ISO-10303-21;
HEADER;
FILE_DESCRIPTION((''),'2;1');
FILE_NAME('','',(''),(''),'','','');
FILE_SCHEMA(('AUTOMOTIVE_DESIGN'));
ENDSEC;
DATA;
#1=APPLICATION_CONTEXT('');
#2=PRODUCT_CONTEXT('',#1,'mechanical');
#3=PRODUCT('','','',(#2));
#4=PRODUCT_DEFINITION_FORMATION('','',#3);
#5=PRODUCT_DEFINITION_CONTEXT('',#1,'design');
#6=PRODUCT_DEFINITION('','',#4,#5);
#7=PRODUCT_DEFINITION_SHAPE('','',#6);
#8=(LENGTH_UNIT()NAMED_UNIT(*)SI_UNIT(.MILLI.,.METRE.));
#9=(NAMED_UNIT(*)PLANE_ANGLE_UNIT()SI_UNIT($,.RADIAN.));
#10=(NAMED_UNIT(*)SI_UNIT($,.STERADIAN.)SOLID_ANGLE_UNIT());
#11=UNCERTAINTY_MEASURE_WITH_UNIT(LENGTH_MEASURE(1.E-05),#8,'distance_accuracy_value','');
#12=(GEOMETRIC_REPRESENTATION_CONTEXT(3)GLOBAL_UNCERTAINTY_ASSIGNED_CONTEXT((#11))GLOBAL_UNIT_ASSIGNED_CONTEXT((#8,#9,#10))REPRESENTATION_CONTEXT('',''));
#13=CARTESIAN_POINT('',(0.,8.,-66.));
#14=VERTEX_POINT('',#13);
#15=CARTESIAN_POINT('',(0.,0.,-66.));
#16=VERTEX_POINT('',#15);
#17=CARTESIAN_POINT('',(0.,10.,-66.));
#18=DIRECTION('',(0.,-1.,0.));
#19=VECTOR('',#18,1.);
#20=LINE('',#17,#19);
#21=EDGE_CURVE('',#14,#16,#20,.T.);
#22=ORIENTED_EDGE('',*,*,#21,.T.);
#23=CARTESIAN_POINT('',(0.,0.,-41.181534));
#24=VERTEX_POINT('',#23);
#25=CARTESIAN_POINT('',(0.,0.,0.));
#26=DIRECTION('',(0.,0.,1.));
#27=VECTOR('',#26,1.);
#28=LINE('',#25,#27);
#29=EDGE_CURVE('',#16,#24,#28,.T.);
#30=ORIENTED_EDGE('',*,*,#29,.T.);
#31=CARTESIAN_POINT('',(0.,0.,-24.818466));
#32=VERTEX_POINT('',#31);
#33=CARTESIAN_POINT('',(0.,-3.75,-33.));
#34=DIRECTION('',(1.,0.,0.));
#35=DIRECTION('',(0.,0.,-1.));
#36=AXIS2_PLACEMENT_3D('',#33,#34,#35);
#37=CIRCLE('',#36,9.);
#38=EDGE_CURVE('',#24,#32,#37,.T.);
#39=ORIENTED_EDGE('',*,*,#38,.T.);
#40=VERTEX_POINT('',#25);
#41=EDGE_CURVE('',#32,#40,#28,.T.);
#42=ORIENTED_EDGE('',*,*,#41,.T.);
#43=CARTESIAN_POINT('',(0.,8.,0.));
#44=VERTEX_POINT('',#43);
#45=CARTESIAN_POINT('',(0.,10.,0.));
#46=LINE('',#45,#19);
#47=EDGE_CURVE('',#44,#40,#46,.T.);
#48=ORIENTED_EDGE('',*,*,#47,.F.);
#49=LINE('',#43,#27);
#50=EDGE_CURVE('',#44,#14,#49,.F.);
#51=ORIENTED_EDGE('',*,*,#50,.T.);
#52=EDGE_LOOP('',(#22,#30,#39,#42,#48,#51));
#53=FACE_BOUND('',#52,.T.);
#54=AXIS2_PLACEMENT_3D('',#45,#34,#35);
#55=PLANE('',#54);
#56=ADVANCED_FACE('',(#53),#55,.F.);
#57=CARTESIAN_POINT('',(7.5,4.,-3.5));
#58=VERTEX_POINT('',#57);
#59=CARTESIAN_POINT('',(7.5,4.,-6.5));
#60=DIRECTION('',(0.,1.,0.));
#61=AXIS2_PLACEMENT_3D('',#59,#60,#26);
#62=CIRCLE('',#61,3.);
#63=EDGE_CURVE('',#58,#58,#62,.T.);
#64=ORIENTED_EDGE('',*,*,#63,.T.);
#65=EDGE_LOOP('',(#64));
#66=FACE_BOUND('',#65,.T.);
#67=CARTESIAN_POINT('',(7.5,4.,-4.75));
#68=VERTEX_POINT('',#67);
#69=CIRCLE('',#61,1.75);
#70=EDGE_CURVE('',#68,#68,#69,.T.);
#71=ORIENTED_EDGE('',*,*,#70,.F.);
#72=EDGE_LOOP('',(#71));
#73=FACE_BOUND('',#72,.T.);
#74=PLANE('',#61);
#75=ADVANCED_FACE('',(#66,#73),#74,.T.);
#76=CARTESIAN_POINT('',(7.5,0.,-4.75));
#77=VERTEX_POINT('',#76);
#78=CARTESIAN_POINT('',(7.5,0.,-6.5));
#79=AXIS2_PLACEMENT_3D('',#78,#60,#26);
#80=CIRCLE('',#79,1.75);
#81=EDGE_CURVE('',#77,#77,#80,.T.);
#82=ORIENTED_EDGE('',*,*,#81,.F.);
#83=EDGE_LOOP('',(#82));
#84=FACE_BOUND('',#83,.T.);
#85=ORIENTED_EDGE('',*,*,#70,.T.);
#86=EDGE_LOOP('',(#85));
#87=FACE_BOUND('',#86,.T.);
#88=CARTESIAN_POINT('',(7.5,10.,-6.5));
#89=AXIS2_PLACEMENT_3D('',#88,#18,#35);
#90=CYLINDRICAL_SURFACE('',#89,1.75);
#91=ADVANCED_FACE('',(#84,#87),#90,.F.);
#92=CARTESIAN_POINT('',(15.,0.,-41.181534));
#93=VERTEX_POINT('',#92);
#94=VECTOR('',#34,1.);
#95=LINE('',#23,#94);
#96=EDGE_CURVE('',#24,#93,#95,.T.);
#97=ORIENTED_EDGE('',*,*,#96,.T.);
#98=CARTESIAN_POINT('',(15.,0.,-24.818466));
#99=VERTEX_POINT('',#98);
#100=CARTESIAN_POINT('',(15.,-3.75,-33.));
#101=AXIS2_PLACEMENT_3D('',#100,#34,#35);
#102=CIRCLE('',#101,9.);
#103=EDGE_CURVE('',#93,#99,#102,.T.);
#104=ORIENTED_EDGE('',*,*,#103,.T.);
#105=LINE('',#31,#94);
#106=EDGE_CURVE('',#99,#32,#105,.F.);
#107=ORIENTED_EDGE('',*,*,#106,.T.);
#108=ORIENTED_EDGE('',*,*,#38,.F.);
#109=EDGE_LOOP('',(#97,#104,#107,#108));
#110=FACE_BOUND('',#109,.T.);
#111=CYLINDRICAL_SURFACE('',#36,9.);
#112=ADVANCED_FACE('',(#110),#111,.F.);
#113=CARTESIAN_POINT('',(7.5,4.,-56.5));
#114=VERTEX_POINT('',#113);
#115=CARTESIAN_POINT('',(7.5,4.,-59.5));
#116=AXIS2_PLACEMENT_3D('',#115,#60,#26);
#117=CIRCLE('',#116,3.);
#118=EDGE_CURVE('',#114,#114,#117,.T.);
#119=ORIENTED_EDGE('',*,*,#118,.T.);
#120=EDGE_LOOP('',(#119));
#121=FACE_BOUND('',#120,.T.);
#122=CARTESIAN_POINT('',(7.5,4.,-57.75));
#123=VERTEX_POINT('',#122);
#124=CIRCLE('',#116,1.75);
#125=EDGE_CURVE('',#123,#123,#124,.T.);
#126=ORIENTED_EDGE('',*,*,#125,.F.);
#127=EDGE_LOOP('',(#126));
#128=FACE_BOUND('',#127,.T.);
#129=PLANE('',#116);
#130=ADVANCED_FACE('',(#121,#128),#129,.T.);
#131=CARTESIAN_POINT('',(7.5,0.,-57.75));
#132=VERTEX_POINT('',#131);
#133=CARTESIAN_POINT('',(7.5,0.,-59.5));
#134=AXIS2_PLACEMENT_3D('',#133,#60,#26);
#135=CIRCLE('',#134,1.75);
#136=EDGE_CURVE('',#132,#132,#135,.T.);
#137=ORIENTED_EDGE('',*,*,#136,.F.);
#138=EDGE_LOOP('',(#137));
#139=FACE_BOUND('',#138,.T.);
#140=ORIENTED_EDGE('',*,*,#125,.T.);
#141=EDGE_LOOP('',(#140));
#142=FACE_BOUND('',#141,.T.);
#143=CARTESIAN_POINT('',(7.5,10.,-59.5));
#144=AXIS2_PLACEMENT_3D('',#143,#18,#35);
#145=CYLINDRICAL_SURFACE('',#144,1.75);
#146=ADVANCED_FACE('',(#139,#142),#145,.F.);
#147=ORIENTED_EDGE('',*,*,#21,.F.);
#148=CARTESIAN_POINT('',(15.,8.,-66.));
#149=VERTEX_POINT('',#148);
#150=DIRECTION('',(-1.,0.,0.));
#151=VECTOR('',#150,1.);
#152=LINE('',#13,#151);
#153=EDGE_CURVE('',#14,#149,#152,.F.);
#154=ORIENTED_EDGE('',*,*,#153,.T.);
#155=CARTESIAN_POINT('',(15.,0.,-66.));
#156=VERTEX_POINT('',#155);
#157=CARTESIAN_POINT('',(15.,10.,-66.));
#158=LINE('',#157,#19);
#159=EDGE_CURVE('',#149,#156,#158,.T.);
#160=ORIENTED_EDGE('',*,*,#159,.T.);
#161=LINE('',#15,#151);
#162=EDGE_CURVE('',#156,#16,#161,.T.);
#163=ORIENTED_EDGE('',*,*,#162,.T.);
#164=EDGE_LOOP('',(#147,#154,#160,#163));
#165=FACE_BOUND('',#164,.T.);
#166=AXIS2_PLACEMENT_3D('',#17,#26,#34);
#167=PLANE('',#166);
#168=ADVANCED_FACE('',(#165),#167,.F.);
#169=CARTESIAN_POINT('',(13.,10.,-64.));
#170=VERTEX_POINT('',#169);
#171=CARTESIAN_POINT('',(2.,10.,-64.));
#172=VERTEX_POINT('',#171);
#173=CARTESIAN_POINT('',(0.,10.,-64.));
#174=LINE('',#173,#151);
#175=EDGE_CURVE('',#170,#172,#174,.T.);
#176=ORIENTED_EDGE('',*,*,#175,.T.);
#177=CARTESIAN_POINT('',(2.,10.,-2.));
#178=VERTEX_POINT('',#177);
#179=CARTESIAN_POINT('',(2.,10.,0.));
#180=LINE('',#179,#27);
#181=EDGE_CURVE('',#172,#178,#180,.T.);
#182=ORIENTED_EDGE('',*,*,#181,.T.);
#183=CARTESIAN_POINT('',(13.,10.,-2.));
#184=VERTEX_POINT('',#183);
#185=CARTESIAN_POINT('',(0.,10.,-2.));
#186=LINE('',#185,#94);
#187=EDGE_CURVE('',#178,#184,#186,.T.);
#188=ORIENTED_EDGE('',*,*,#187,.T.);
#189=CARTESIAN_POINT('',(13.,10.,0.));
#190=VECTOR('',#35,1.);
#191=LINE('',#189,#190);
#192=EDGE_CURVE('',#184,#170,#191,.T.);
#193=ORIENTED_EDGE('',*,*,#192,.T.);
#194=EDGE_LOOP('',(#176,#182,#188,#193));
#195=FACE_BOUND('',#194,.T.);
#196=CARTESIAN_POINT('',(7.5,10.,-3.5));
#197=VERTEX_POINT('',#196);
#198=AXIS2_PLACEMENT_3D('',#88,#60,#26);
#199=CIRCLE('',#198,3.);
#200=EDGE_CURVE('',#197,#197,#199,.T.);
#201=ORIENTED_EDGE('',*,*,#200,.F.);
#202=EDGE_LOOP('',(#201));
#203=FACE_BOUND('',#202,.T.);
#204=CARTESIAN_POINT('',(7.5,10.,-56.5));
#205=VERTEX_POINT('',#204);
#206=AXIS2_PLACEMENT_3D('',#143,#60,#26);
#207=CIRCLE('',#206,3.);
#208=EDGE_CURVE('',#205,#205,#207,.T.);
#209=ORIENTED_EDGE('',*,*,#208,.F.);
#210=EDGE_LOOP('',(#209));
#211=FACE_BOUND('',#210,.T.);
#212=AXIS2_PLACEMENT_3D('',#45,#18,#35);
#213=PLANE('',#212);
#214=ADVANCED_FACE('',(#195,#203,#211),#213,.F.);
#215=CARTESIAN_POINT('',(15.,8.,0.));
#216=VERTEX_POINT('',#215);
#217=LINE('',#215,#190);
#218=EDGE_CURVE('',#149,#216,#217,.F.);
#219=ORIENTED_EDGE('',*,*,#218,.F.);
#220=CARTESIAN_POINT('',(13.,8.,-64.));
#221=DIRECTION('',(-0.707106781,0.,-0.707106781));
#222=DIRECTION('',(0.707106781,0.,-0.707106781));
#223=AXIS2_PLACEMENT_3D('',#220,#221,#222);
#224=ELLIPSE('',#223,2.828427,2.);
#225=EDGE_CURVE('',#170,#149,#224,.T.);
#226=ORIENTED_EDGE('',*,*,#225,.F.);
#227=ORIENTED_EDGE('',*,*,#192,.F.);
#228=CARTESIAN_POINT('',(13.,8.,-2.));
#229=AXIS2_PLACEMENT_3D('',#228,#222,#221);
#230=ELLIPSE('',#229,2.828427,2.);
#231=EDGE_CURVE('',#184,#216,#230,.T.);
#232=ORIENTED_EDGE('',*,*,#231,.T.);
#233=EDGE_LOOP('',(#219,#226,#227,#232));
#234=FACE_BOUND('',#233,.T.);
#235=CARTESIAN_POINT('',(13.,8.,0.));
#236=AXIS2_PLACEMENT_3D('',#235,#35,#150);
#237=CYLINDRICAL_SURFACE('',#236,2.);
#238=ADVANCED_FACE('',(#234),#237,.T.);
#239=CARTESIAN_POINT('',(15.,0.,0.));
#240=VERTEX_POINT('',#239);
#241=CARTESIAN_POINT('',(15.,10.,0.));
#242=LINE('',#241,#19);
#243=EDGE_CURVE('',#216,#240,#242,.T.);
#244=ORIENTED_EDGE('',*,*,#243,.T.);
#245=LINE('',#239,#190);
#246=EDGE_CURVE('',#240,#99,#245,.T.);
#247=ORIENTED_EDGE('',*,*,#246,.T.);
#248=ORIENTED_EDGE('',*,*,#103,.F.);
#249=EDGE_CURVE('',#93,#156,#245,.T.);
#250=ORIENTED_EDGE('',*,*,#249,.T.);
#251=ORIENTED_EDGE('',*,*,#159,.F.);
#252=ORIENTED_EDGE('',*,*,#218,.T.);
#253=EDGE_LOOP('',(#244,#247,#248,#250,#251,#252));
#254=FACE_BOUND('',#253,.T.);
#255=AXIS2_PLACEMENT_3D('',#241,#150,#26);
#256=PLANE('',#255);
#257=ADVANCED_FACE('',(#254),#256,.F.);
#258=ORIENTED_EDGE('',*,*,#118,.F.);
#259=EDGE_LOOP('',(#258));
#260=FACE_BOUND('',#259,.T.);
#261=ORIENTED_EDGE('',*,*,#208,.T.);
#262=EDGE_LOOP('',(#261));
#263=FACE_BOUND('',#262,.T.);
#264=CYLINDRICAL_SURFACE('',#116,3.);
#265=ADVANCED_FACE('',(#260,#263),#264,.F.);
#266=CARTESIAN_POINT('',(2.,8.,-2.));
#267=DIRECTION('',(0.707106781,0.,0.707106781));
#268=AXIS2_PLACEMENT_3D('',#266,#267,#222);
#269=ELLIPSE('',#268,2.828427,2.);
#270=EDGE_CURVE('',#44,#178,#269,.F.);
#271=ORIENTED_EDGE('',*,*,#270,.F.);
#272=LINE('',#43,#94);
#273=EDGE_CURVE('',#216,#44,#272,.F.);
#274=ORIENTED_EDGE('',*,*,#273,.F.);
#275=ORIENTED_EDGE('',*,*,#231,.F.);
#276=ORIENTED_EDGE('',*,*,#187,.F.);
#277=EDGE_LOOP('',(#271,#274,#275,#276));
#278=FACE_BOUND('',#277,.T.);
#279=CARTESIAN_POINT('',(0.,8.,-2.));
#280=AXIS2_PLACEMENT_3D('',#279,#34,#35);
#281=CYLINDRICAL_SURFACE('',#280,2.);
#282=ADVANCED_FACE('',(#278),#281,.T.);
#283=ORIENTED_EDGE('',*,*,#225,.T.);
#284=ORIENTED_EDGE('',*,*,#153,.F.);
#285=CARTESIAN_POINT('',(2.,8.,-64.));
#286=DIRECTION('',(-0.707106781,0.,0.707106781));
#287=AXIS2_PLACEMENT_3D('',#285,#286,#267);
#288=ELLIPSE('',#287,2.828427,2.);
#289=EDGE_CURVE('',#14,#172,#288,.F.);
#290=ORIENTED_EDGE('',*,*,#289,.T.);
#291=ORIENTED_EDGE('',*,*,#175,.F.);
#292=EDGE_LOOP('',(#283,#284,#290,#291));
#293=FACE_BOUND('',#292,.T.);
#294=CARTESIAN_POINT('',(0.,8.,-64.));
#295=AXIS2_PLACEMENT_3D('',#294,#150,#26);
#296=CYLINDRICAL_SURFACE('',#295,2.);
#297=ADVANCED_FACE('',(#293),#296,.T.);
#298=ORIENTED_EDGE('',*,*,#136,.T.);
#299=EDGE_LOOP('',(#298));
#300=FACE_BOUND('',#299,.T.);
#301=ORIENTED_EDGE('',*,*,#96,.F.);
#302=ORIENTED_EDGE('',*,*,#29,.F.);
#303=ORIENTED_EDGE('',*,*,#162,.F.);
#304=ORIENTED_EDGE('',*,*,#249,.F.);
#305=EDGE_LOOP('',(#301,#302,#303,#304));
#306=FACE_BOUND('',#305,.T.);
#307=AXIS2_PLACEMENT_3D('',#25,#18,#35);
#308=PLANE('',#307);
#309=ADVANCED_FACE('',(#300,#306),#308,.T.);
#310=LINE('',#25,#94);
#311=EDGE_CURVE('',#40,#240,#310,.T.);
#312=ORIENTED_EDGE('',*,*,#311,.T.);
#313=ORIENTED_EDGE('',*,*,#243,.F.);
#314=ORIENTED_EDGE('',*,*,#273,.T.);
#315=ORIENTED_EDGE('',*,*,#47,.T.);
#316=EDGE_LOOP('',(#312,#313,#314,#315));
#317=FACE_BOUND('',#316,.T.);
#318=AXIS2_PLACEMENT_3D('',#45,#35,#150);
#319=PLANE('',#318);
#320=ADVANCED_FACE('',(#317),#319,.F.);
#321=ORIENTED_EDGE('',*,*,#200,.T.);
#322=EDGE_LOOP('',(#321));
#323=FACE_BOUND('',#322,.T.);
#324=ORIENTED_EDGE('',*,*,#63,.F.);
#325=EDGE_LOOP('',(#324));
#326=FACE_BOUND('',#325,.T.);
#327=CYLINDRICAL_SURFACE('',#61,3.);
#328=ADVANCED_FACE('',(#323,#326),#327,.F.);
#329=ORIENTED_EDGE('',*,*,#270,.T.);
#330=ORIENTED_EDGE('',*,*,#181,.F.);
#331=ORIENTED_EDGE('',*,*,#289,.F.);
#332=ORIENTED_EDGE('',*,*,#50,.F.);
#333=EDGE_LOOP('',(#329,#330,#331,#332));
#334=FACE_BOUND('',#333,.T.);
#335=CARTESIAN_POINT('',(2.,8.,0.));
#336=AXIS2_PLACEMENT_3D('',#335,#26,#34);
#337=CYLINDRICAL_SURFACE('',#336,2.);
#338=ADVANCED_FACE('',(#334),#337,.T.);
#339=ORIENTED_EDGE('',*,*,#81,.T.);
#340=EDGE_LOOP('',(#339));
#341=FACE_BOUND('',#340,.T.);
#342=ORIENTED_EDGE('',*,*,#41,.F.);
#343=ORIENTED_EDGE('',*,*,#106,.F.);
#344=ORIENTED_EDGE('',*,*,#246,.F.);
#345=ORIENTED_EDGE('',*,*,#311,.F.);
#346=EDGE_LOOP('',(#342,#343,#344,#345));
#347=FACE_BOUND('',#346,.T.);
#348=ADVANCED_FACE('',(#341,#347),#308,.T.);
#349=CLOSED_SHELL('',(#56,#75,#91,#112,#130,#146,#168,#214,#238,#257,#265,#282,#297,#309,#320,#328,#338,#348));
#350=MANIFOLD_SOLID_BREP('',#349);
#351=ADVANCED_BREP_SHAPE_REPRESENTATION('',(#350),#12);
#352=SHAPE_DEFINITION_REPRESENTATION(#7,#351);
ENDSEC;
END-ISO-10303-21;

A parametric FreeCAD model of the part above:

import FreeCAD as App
import Part
import Sketcher

V = App.Vector


def edges_at(feature, points):
    """Names of the edges that pass closest to the given points."""
    edges = feature.Shape.Edges
    near = lambda p: min(range(len(edges)), key=lambda i: edges[i].distToShape(Part.Vertex(*p))[0])
    return sorted({f"Edge{near(p) + 1}" for p in points})

doc = App.newDocument("Part")
body = doc.addObject("PartDesign::Body", "Body")

# Sketch on XZ plane
sketch1 = doc.addObject("Sketcher::SketchObject", "Sketch")
body.addObject(sketch1)
sketch1.AttachmentSupport = (doc.XZ_Plane, [""])
sketch1.MapMode = "FlatFace"
sketch1.addGeometry(Part.LineSegment(V(0, -66, 0), V(0, 0, 0)), False)
sketch1.addGeometry(Part.LineSegment(V(0, 0, 0), V(15, 0, 0)), False)
sketch1.addGeometry(Part.LineSegment(V(15, 0, 0), V(15, -66, 0)), False)
sketch1.addGeometry(Part.LineSegment(V(15, -66, 0), V(0, -66, 0)), False)
sketch1.addGeometry(Part.Circle(V(7.5, -6.5, 0), V(0, 0, 1), 1.75), False)
sketch1.addGeometry(Part.Circle(V(7.5, -59.5, 0), V(0, 0, 1), 1.75), False)
sketch1.addConstraint(Sketcher.Constraint("Coincident", 0, 2, 1, 1))
sketch1.addConstraint(Sketcher.Constraint("Coincident", 1, 2, 2, 1))
sketch1.addConstraint(Sketcher.Constraint("Coincident", 2, 2, 3, 1))
sketch1.addConstraint(Sketcher.Constraint("Coincident", 3, 2, 0, 1))
sketch1.addConstraint(Sketcher.Constraint("Vertical", 0))
sketch1.addConstraint(Sketcher.Constraint("Horizontal", 1))
sketch1.addConstraint(Sketcher.Constraint("Vertical", 2))
sketch1.addConstraint(Sketcher.Constraint("Horizontal", 3))
sketch1.addConstraint(Sketcher.Constraint("Coincident", 0, 2, -1, 1))
sketch1.addConstraint(Sketcher.Constraint("Equal", 4, 5))
sketch1.addConstraint(Sketcher.Constraint("Vertical", 4, 3, 5, 3))
sketch1.addConstraint(Sketcher.Constraint("Diameter", 4, 3.5))
sketch1.addConstraint(Sketcher.Constraint("DistanceX", 1, 1, 1, 2, 15.0))
sketch1.addConstraint(Sketcher.Constraint("DistanceY", 0, 1, 0, 2, 66.0))
sketch1.addConstraint(Sketcher.Constraint("DistanceY", 5, 3, 4, 3, 53.0))
sketch1.addConstraint(Sketcher.Constraint("DistanceX", -1, 1, 4, 3, 7.5))
sketch1.addConstraint(Sketcher.Constraint("DistanceY", 4, 3, -1, 1, 6.5))
pad1 = doc.addObject("PartDesign::Pad", "Pad")
body.addObject(pad1)
pad1.Profile = sketch1
pad1.Length = 10
pad1.Reversed = True

# Sketch on XZ plane
sketch2 = doc.addObject("Sketcher::SketchObject", "Sketch001")
body.addObject(sketch2)
sketch2.AttachmentSupport = (doc.XZ_Plane, [""])
sketch2.MapMode = "FlatFace"
sketch2.AttachmentOffset = App.Placement(V(0, 0, -10), App.Rotation())
sketch2.addGeometry(Part.Circle(V(7.5, -59.5, 0), V(0, 0, 1), 3), False)
sketch2.addGeometry(Part.Circle(V(7.5, -6.5, 0), V(0, 0, 1), 3), False)
sketch2.addConstraint(Sketcher.Constraint("Equal", 0, 1))
sketch2.addConstraint(Sketcher.Constraint("Vertical", 0, 3, 1, 3))
sketch2.addConstraint(Sketcher.Constraint("Diameter", 0, 6.0))
sketch2.addConstraint(Sketcher.Constraint("DistanceY", 0, 3, 1, 3, 53.0))
sketch2.addConstraint(Sketcher.Constraint("DistanceX", -1, 1, 0, 3, 7.5))
sketch2.addConstraint(Sketcher.Constraint("DistanceY", 0, 3, -1, 1, 59.5))
pocket1 = doc.addObject("PartDesign::Pocket", "Pocket")
body.addObject(pocket1)
pocket1.Profile = sketch2
pocket1.Length = 6
pocket1.Reversed = True
doc.recompute()

fillet = doc.addObject("PartDesign::Fillet", "Fillet")
body.addObject(fillet)
fillet.Base = (pocket1, edges_at(pocket1, [
    (15, 10, -33),
    (7.5, 10, -66),
    (0, 10, -33),
    (7.5, 10, 0),
]))
fillet.Radius = 2

# Sketch on YZ plane
sketch3 = doc.addObject("Sketcher::SketchObject", "Sketch002")
body.addObject(sketch3)
sketch3.AttachmentSupport = (doc.YZ_Plane, [""])
sketch3.MapMode = "FlatFace"
sketch3.AttachmentOffset = App.Placement(V(0, 0, 15), App.Rotation())
sketch3.addGeometry(Part.Circle(V(-3.75, -33, 0), V(0, 0, 1), 9), False)
sketch3.addConstraint(Sketcher.Constraint("Diameter", 0, 18.0))
sketch3.addConstraint(Sketcher.Constraint("DistanceY", 0, 3, -1, 1, 33.0))
sketch3.addConstraint(Sketcher.Constraint("DistanceX", 0, 3, -1, 1, 3.75))
pocket2 = doc.addObject("PartDesign::Pocket", "Pocket001")
body.addObject(pocket2)
pocket2.Profile = sketch3
pocket2.Length = 15

doc.recompute()
